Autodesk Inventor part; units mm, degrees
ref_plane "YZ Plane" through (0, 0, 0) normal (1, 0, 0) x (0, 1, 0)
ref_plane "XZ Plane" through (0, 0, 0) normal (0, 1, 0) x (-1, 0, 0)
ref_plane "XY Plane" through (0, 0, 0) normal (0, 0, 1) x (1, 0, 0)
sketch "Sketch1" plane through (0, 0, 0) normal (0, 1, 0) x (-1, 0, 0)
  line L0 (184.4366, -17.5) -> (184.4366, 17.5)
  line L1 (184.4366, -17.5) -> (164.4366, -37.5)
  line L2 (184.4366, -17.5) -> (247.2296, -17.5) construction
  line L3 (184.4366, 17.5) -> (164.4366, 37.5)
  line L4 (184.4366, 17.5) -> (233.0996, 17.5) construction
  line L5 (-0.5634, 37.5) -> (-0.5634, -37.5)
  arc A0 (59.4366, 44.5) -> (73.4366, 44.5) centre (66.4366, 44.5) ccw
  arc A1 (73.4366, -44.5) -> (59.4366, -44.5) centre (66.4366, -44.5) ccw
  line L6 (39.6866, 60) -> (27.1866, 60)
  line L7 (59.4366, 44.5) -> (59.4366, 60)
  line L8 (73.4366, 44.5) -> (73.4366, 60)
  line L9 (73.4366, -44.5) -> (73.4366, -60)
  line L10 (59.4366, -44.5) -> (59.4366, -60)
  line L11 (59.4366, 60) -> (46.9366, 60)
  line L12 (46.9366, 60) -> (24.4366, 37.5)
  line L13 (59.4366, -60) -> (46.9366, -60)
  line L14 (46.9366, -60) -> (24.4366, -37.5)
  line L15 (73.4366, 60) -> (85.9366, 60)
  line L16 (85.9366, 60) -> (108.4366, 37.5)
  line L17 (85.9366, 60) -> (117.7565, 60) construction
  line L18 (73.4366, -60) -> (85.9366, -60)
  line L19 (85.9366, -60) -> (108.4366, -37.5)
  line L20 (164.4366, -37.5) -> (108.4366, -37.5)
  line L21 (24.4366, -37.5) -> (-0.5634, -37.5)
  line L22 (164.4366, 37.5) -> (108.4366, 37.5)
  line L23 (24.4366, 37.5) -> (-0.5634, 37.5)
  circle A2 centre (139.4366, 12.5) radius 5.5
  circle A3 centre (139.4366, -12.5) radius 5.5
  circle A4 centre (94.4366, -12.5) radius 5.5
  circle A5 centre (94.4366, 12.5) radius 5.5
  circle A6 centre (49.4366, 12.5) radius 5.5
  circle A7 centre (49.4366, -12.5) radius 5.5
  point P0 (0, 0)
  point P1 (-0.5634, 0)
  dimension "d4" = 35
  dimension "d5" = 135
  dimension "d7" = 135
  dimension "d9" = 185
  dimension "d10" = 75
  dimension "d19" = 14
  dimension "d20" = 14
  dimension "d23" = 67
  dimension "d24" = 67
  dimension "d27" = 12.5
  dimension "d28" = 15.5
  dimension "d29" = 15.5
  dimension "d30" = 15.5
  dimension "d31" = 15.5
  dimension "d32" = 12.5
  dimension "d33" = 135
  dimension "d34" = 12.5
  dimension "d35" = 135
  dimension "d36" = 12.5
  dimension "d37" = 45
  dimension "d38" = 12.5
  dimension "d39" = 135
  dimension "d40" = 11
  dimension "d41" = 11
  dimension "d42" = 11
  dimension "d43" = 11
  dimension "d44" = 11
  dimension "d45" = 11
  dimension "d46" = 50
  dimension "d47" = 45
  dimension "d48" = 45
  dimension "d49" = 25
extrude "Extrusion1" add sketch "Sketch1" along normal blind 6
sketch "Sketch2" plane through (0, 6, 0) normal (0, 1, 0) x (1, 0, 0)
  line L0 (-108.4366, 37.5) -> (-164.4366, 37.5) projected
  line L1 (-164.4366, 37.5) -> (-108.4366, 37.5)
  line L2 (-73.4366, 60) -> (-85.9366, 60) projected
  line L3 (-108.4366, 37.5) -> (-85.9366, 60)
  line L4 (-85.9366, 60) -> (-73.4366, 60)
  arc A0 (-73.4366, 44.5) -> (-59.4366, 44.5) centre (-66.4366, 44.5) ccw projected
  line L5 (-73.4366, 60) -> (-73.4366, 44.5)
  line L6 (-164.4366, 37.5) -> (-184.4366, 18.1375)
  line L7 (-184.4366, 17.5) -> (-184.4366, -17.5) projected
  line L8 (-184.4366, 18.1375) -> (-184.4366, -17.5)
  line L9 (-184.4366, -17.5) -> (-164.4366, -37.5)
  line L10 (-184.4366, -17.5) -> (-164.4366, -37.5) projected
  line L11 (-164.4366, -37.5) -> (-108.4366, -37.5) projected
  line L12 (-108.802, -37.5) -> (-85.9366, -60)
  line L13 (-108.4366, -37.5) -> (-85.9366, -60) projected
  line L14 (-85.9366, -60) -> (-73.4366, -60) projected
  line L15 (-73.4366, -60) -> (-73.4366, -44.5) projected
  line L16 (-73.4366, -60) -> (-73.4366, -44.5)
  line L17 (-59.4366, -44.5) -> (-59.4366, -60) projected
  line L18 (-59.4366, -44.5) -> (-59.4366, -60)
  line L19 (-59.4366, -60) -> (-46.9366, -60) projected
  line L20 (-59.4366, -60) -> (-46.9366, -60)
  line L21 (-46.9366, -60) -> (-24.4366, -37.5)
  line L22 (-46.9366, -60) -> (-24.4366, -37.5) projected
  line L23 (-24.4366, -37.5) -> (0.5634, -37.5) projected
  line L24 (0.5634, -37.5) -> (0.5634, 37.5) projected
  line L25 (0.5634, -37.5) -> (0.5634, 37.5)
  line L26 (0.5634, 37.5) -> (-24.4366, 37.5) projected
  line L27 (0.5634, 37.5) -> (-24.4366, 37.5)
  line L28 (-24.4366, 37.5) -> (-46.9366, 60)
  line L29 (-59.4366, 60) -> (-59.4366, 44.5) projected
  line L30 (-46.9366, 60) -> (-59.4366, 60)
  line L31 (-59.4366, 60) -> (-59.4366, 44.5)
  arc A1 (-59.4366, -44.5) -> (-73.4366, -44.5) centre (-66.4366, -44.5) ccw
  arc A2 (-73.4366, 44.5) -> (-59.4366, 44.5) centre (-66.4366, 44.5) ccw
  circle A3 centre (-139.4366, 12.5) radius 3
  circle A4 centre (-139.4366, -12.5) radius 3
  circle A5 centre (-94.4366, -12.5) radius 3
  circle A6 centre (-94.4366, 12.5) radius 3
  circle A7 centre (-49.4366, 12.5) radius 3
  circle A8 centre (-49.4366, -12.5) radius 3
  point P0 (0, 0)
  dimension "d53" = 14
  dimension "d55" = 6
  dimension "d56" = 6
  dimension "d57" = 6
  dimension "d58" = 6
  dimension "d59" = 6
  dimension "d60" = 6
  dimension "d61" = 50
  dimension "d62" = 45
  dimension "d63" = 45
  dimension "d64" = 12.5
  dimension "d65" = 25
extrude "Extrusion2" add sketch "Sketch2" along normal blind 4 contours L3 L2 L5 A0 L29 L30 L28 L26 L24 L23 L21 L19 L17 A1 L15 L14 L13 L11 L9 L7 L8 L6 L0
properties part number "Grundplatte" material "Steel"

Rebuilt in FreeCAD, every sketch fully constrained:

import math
import FreeCAD as App
import Part
import Sketcher

V = App.Vector
Q = App.Units.Quantity

doc = App.newDocument("Part")
body = doc.addObject("PartDesign::Body", "Body")

# Sketch on XZ plane
sketch1 = doc.addObject("Sketcher::SketchObject", "Sketch")
body.addObject(sketch1)
sketch1.AttachmentSupport = (doc.XZ_Plane, [""])
sketch1.MapMode = "FlatFace"
sketch1.addGeometry(Part.LineSegment(V(-164.4366, -37.5, 0), V(-184.4366, -17.5, 0)), False)
sketch1.addGeometry(Part.LineSegment(V(-184.4366, -17.5, 0), V(-184.4366, 17.5, 0)), False)
sketch1.addGeometry(Part.LineSegment(V(-184.4366, 17.5, 0), V(-164.4366, 37.5, 0)), False)
sketch1.addGeometry(Part.LineSegment(V(-164.4366, 37.5, 0), V(-108.4366, 37.5, 0)), False)
sketch1.addGeometry(Part.LineSegment(V(-108.4366, 37.5, 0), V(-85.9366, 60, 0)), False)
sketch1.addGeometry(Part.LineSegment(V(-85.9366, 60, 0), V(-73.4366, 60, 0)), False)
sketch1.addGeometry(Part.LineSegment(V(-73.4366, 60, 0), V(-73.4366, 44.5, 0)), False)
sketch1.addGeometry(Part.ArcOfCircle(Part.Circle(V(-66.4366, 44.5, 0), V(0, 0, 1), 7), math.radians(180), math.radians(360)), False)
sketch1.addGeometry(Part.LineSegment(V(-59.4366, 44.5, 0), V(-59.4366, 60, 0)), False)
sketch1.addGeometry(Part.LineSegment(V(-59.4366, 60, 0), V(-46.9366, 60, 0)), False)
sketch1.addGeometry(Part.LineSegment(V(-46.9366, 60, 0), V(-24.4366, 37.5, 0)), False)
sketch1.addGeometry(Part.LineSegment(V(-24.4366, 37.5, 0), V(0.5634, 37.5, 0)), False)
sketch1.addGeometry(Part.LineSegment(V(0.5634, 37.5, 0), V(0.5634, -37.5, 0)), False)
sketch1.addGeometry(Part.LineSegment(V(0.5634, -37.5, 0), V(-24.4366, -37.5, 0)), False)
sketch1.addGeometry(Part.LineSegment(V(-24.4366, -37.5, 0), V(-46.9366, -60, 0)), False)
sketch1.addGeometry(Part.LineSegment(V(-46.9366, -60, 0), V(-59.4366, -60, 0)), False)
sketch1.addGeometry(Part.LineSegment(V(-59.4366, -60, 0), V(-59.4366, -44.5, 0)), False)
sketch1.addGeometry(Part.ArcOfCircle(Part.Circle(V(-66.4366, -44.5, 0), V(0, 0, 1), 7), math.radians(0), math.radians(180)), False)
sketch1.addGeometry(Part.LineSegment(V(-73.4366, -44.5, 0), V(-73.4366, -60, 0)), False)
sketch1.addGeometry(Part.LineSegment(V(-73.4366, -60, 0), V(-85.9366, -60, 0)), False)
sketch1.addGeometry(Part.LineSegment(V(-85.9366, -60, 0), V(-108.4366, -37.5, 0)), False)
sketch1.addGeometry(Part.LineSegment(V(-108.4366, -37.5, 0), V(-164.4366, -37.5, 0)), False)
sketch1.addGeometry(Part.Circle(V(-49.4366, -12.5, 0), V(0, 0, 1), 5.5), False)
sketch1.addGeometry(Part.Circle(V(-94.4366, -12.5, 0), V(0, 0, 1), 5.5), False)
sketch1.addGeometry(Part.Circle(V(-139.4366, -12.5, 0), V(0, 0, 1), 5.5), False)
sketch1.addGeometry(Part.Circle(V(-49.4366, 12.5, 0), V(0, 0, 1), 5.5), False)
sketch1.addGeometry(Part.Circle(V(-94.4366, 12.5, 0), V(0, 0, 1), 5.5), False)
sketch1.addGeometry(Part.Circle(V(-139.4366, 12.5, 0), V(0, 0, 1), 5.5), False)
sketch1.addConstraint(Sketcher.Constraint("Coincident", 0, 2, 1, 1))
sketch1.addConstraint(Sketcher.Constraint("Coincident", 1, 2, 2, 1))
sketch1.addConstraint(Sketcher.Constraint("Coincident", 2, 2, 3, 1))
sketch1.addConstraint(Sketcher.Constraint("Coincident", 3, 2, 4, 1))
sketch1.addConstraint(Sketcher.Constraint("Coincident", 4, 2, 5, 1))
sketch1.addConstraint(Sketcher.Constraint("Coincident", 5, 2, 6, 1))
sketch1.addConstraint(Sketcher.Constraint("Tangent", 6, 2, 7, 1))
sketch1.addConstraint(Sketcher.Constraint("Tangent", 7, 2, 8, 1))
sketch1.addConstraint(Sketcher.Constraint("Coincident", 8, 2, 9, 1))
sketch1.addConstraint(Sketcher.Constraint("Coincident", 9, 2, 10, 1))
sketch1.addConstraint(Sketcher.Constraint("Coincident", 10, 2, 11, 1))
sketch1.addConstraint(Sketcher.Constraint("Coincident", 11, 2, 12, 1))
sketch1.addConstraint(Sketcher.Constraint("Coincident", 12, 2, 13, 1))
sketch1.addConstraint(Sketcher.Constraint("Coincident", 13, 2, 14, 1))
sketch1.addConstraint(Sketcher.Constraint("Coincident", 14, 2, 15, 1))
sketch1.addConstraint(Sketcher.Constraint("Coincident", 15, 2, 16, 1))
sketch1.addConstraint(Sketcher.Constraint("Tangent", 16, 2, 17, 1))
sketch1.addConstraint(Sketcher.Constraint("Tangent", 17, 2, 18, 1))
sketch1.addConstraint(Sketcher.Constraint("Coincident", 18, 2, 19, 1))
sketch1.addConstraint(Sketcher.Constraint("Coincident", 19, 2, 20, 1))
sketch1.addConstraint(Sketcher.Constraint("Coincident", 20, 2, 21, 1))
sketch1.addConstraint(Sketcher.Constraint("Coincident", 21, 2, 0, 1))
sketch1.addConstraint(Sketcher.Constraint("Vertical", 1))
sketch1.addConstraint(Sketcher.Constraint("Horizontal", 3))
sketch1.addConstraint(Sketcher.Constraint("Horizontal", 5))
sketch1.addConstraint(Sketcher.Constraint("Vertical", 6))
sketch1.addConstraint(Sketcher.Constraint("Vertical", 8))
sketch1.addConstraint(Sketcher.Constraint("Horizontal", 9))
sketch1.addConstraint(Sketcher.Constraint("Horizontal", 11))
sketch1.addConstraint(Sketcher.Constraint("Vertical", 12))
sketch1.addConstraint(Sketcher.Constraint("Horizontal", 13))
sketch1.addConstraint(Sketcher.Constraint("Horizontal", 15))
sketch1.addConstraint(Sketcher.Constraint("Vertical", 16))
sketch1.addConstraint(Sketcher.Constraint("Vertical", 18))
sketch1.addConstraint(Sketcher.Constraint("Horizontal", 19))
sketch1.addConstraint(Sketcher.Constraint("Horizontal", 21))
sketch1.addConstraint(Sketcher.Constraint("Equal", 7, 17))
sketch1.addConstraint(Sketcher.Constraint("Equal", 22, 23))
sketch1.addConstraint(Sketcher.Constraint("Equal", 23, 24))
sketch1.addConstraint(Sketcher.Constraint("Equal", 24, 25))
sketch1.addConstraint(Sketcher.Constraint("Equal", 25, 26))
sketch1.addConstraint(Sketcher.Constraint("Equal", 26, 27))
sketch1.addConstraint(Sketcher.Constraint("Symmetric", 7, 3, 17, 3, -1))
sketch1.addConstraint(Sketcher.Constraint("Symmetric", 22, 3, 25, 3, -1))
sketch1.addConstraint(Sketcher.Constraint("Symmetric", 23, 3, 26, 3, -1))
sketch1.addConstraint(Sketcher.Constraint("Symmetric", 24, 3, 27, 3, -1))
sketch1.addConstraint(Sketcher.Constraint("Symmetric", 10, 2, 13, 2, -1))
sketch1.addConstraint(Sketcher.Constraint("Symmetric", 9, 2, 14, 2, -1))
sketch1.addConstraint(Sketcher.Constraint("Symmetric", 4, 2, 19, 2, -1))
sketch1.addConstraint(Sketcher.Constraint("Symmetric", 3, 2, 20, 2, -1))
sketch1.addConstraint(Sketcher.Constraint("Perpendicular", 0, 2))
sketch1.addConstraint(Sketcher.Constraint("Parallel", 2, 4))
sketch1.addConstraint(Sketcher.Constraint("Perpendicular", 4, 10))
sketch1.addConstraint(Sketcher.Constraint("Perpendicular", 10, 14))
sketch1.addConstraint(Sketcher.Constraint("Horizontal", 22, 3, 23, 3))
sketch1.addConstraint(Sketcher.Constraint("Horizontal", 23, 3, 24, 3))
sketch1.addConstraint(Sketcher.Constraint("Horizontal", 5, 2, 8, 2))
sketch1.addConstraint(Sketcher.Constraint("Horizontal", 3, 2, 10, 2))
sketch1.addConstraint(Sketcher.Constraint("Vertical", 2, 2, 21, 2))
sketch1.addConstraint(Sketcher.Constraint("Equal", 5, 9))
sketch1.addConstraint(Sketcher.Constraint("Diameter", 22, Q("11 mm")))
sketch1.addConstraint(Sketcher.Constraint("Radius", 7, Q("7 mm")))
sketch1.addConstraint(Sketcher.Constraint("DistanceX", 11, 1, 11, 2, Q("25 mm")))
sketch1.addConstraint(Sketcher.Constraint("DistanceY", 1, 1, 1, 2, Q("35 mm")))
sketch1.addConstraint(Sketcher.Constraint("DistanceY", 12, 2, 12, 1, Q("75 mm")))
sketch1.addConstraint(Sketcher.Constraint("DistanceX", 5, 1, 5, 2, Q("12.5 mm")))
sketch1.addConstraint(Sketcher.Constraint("DistanceY", 6, 2, 6, 1, Q("15.5 mm")))
sketch1.addConstraint(Sketcher.Constraint("DistanceX", 23, 3, 22, 3, Q("45 mm")))
sketch1.addConstraint(Sketcher.Constraint("DistanceX", 24, 3, 23, 3, Q("45 mm")))
sketch1.addConstraint(Sketcher.Constraint("DistanceY", 22, 3, 25, 3, Q("25 mm")))
sketch1.addConstraint(Sketcher.Constraint("DistanceX", 0, 2, 24, 3, Q("45 mm")))
sketch1.addConstraint(Sketcher.Constraint("DistanceX", 3, 2, 26, 3, Q("14 mm")))
sketch1.addConstraint(Sketcher.Constraint("DistanceX", 3, 2, 5, 2, Q("35 mm")))
sketch1.addConstraint(Sketcher.Constraint("DistanceX", 7, 3, -1, 1, Q("66.4366 mm")))
pad1 = doc.addObject("PartDesign::Pad", "Pad")
body.addObject(pad1)
pad1.Profile = sketch1
pad1.Length = 6
pad1.Reversed = True

# Sketch on XZ plane
sketch2 = doc.addObject("Sketcher::SketchObject", "Sketch001")
body.addObject(sketch2)
sketch2.AttachmentSupport = (doc.XZ_Plane, [""])
sketch2.MapMode = "FlatFace"
sketch2.AttachmentOffset = App.Placement(V(0, 0, -6), App.Rotation())
sketch2.addGeometry(Part.LineSegment(V(-85.9366, -60, 0), V(-108.4366, -37.5, 0)), False)
sketch2.addGeometry(Part.LineSegment(V(-108.4366, -37.5, 0), V(-164.4366, -37.5, 0)), False)
sketch2.addGeometry(Part.LineSegment(V(-164.4366, -37.5, 0), V(-184.4366, -18.1375, 0)), False)
sketch2.addGeometry(Part.LineSegment(V(-184.4366, -18.1375, 0), V(-184.4366, 17.5, 0)), False)
sketch2.addGeometry(Part.LineSegment(V(-184.4366, 17.5, 0), V(-164.4366, 37.5, 0)), False)
sketch2.addGeometry(Part.LineSegment(V(-164.4366, 37.5, 0), V(-108.4366, 37.5, 0)), False)
sketch2.addGeometry(Part.LineSegment(V(-108.4366, 37.5, 0), V(-85.9366, 60, 0)), False)
sketch2.addGeometry(Part.LineSegment(V(-85.9366, 60, 0), V(-73.4366, 60, 0)), False)
sketch2.addGeometry(Part.LineSegment(V(-73.4366, 60, 0), V(-73.4366, 44.5, 0)), False)
sketch2.addGeometry(Part.ArcOfCircle(Part.Circle(V(-66.4366, 44.5, 0), V(0, 0, 1), 7), math.radians(180), math.radians(360)), False)
sketch2.addGeometry(Part.LineSegment(V(-59.4366, 44.5, 0), V(-59.4366, 60, 0)), False)
sketch2.addGeometry(Part.LineSegment(V(-59.4366, 60, 0), V(-46.9366, 60, 0)), False)
sketch2.addGeometry(Part.LineSegment(V(-46.9366, 60, 0), V(-24.4366, 37.5, 0)), False)
sketch2.addGeometry(Part.LineSegment(V(-24.4366, 37.5, 0), V(0.5634, 37.5, 0)), False)
sketch2.addGeometry(Part.LineSegment(V(0.5634, 37.5, 0), V(0.5634, -37.5, 0)), False)
sketch2.addGeometry(Part.LineSegment(V(0.5634, -37.5, 0), V(-24.4366, -37.5, 0)), False)
sketch2.addGeometry(Part.LineSegment(V(-24.4366, -37.5, 0), V(-46.9366, -60, 0)), False)
sketch2.addGeometry(Part.LineSegment(V(-46.9366, -60, 0), V(-59.4366, -60, 0)), False)
sketch2.addGeometry(Part.LineSegment(V(-59.4366, -60, 0), V(-59.4366, -44.5, 0)), False)
sketch2.addGeometry(Part.ArcOfCircle(Part.Circle(V(-66.4366, -44.5, 0), V(0, 0, 1), 7), math.radians(0), math.radians(180)), False)
sketch2.addGeometry(Part.LineSegment(V(-73.4366, -44.5, 0), V(-73.4366, -60, 0)), False)
sketch2.addGeometry(Part.LineSegment(V(-73.4366, -60, 0), V(-85.9366, -60, 0)), False)
sketch2.addGeometry(Part.Circle(V(-139.4366, 12.5, 0), V(0, 0, 1), 3), False)
sketch2.addGeometry(Part.Circle(V(-94.4366, 12.5, 0), V(0, 0, 1), 3), False)
sketch2.addGeometry(Part.Circle(V(-49.4366, 12.5, 0), V(0, 0, 1), 3), False)
sketch2.addGeometry(Part.Circle(V(-139.4366, -12.5, 0), V(0, 0, 1), 3), False)
sketch2.addGeometry(Part.Circle(V(-94.4366, -12.5, 0), V(0, 0, 1), 3), False)
sketch2.addGeometry(Part.Circle(V(-49.4366, -12.5, 0), V(0, 0, 1), 3), False)
sketch2.addConstraint(Sketcher.Constraint("Coincident", 0, 2, 1, 1))
sketch2.addConstraint(Sketcher.Constraint("Coincident", 1, 2, 2, 1))
sketch2.addConstraint(Sketcher.Constraint("Coincident", 2, 2, 3, 1))
sketch2.addConstraint(Sketcher.Constraint("Coincident", 3, 2, 4, 1))
sketch2.addConstraint(Sketcher.Constraint("Coincident", 4, 2, 5, 1))
sketch2.addConstraint(Sketcher.Constraint("Coincident", 5, 2, 6, 1))
sketch2.addConstraint(Sketcher.Constraint("Coincident", 6, 2, 7, 1))
sketch2.addConstraint(Sketcher.Constraint("Coincident", 7, 2, 8, 1))
sketch2.addConstraint(Sketcher.Constraint("Tangent", 8, 2, 9, 1))
sketch2.addConstraint(Sketcher.Constraint("Tangent", 9, 2, 10, 1))
sketch2.addConstraint(Sketcher.Constraint("Coincident", 10, 2, 11, 1))
sketch2.addConstraint(Sketcher.Constraint("Coincident", 11, 2, 12, 1))
sketch2.addConstraint(Sketcher.Constraint("Coincident", 12, 2, 13, 1))
sketch2.addConstraint(Sketcher.Constraint("Coincident", 13, 2, 14, 1))
sketch2.addConstraint(Sketcher.Constraint("Coincident", 14, 2, 15, 1))
sketch2.addConstraint(Sketcher.Constraint("Coincident", 15, 2, 16, 1))
sketch2.addConstraint(Sketcher.Constraint("Coincident", 16, 2, 17, 1))
sketch2.addConstraint(Sketcher.Constraint("Coincident", 17, 2, 18, 1))
sketch2.addConstraint(Sketcher.Constraint("Tangent", 18, 2, 19, 1))
sketch2.addConstraint(Sketcher.Constraint("Tangent", 19, 2, 20, 1))
sketch2.addConstraint(Sketcher.Constraint("Coincident", 20, 2, 21, 1))
sketch2.addConstraint(Sketcher.Constraint("Coincident", 21, 2, 0, 1))
sketch2.addConstraint(Sketcher.Constraint("Horizontal", 1))
sketch2.addConstraint(Sketcher.Constraint("Vertical", 3))
sketch2.addConstraint(Sketcher.Constraint("Horizontal", 5))
sketch2.addConstraint(Sketcher.Constraint("Horizontal", 7))
sketch2.addConstraint(Sketcher.Constraint("Vertical", 8))
sketch2.addConstraint(Sketcher.Constraint("Vertical", 10))
sketch2.addConstraint(Sketcher.Constraint("Horizontal", 11))
sketch2.addConstraint(Sketcher.Constraint("Horizontal", 13))
sketch2.addConstraint(Sketcher.Constraint("Vertical", 14))
sketch2.addConstraint(Sketcher.Constraint("Horizontal", 15))
sketch2.addConstraint(Sketcher.Constraint("Horizontal", 17))
sketch2.addConstraint(Sketcher.Constraint("Vertical", 18))
sketch2.addConstraint(Sketcher.Constraint("Vertical", 20))
sketch2.addConstraint(Sketcher.Constraint("Horizontal", 21))
sketch2.addConstraint(Sketcher.Constraint("Equal", 9, 19))
sketch2.addConstraint(Sketcher.Constraint("Equal", 22, 23))
sketch2.addConstraint(Sketcher.Constraint("Equal", 23, 24))
sketch2.addConstraint(Sketcher.Constraint("Equal", 24, 25))
sketch2.addConstraint(Sketcher.Constraint("Equal", 25, 26))
sketch2.addConstraint(Sketcher.Constraint("Equal", 26, 27))
sketch2.addConstraint(Sketcher.Constraint("Symmetric", 9, 3, 19, 3, -1))
sketch2.addConstraint(Sketcher.Constraint("Symmetric", 22, 3, 25, 3, -1))
sketch2.addConstraint(Sketcher.Constraint("Symmetric", 23, 3, 26, 3, -1))
sketch2.addConstraint(Sketcher.Constraint("Symmetric", 24, 3, 27, 3, -1))
sketch2.addConstraint(Sketcher.Constraint("Symmetric", 1, 2, 4, 2, -1))
sketch2.addConstraint(Sketcher.Constraint("Symmetric", 12, 2, 15, 2, -1))
sketch2.addConstraint(Sketcher.Constraint("Symmetric", 11, 2, 16, 2, -1))
sketch2.addConstraint(Sketcher.Constraint("Symmetric", 6, 2, 21, 2, -1))
sketch2.addConstraint(Sketcher.Constraint("Perpendicular", 0, 4))
sketch2.addConstraint(Sketcher.Constraint("Parallel", 4, 6))
sketch2.addConstraint(Sketcher.Constraint("Perpendicular", 6, 12))
sketch2.addConstraint(Sketcher.Constraint("Perpendicular", 12, 16))
sketch2.addConstraint(Sketcher.Constraint("Horizontal", 22, 3, 23, 3))
sketch2.addConstraint(Sketcher.Constraint("Horizontal", 23, 3, 24, 3))
sketch2.addConstraint(Sketcher.Constraint("Horizontal", 7, 2, 10, 2))
sketch2.addConstraint(Sketcher.Constraint("Horizontal", 5, 2, 12, 2))
sketch2.addConstraint(Sketcher.Constraint("Equal", 7, 11))
sketch2.addConstraint(Sketcher.Constraint("Diameter", 22, Q("6 mm")))
sketch2.addConstraint(Sketcher.Constraint("Radius", 9, Q("7 mm")))
sketch2.addConstraint(Sketcher.Constraint("DistanceX", 13, 1, 13, 2, Q("25 mm")))
sketch2.addConstraint(Sketcher.Constraint("DistanceX", 7, 1, 7, 2, Q("12.5 mm")))
sketch2.addConstraint(Sketcher.Constraint("DistanceX", 22, 3, 23, 3, Q("45 mm")))
sketch2.addConstraint(Sketcher.Constraint("DistanceX", 23, 3, 24, 3, Q("45 mm")))
sketch2.addConstraint(Sketcher.Constraint("DistanceY", 25, 3, 22, 3, Q("25 mm")))
sketch2.addConstraint(Sketcher.Constraint("DistanceX", 0, 2, 26, 3, Q("14 mm")))
sketch2.addConstraint(Sketcher.Constraint("DistanceY", 0, 2, 26, 3, Q("25 mm")))
sketch2.addConstraint(Sketcher.Constraint("DistanceX", 1, 2, 25, 3, Q("25 mm")))
sketch2.addConstraint(Sketcher.Constraint("DistanceX", 2, 2, 25, 3, Q("45 mm")))
sketch2.addConstraint(Sketcher.Constraint("DistanceX", 24, 3, 12, 2, Q("25 mm")))
sketch2.addConstraint(Sketcher.Constraint("DistanceY", 8, 2, 8, 1, Q("15.5 mm")))
sketch2.addConstraint(Sketcher.Constraint("DistanceY", 3, 1, 3, 2, Q("35.6375 mm")))
sketch2.addConstraint(Sketcher.Constraint("DistanceX", 9, 3, -1, 1, Q("66.4366 mm")))
pad2 = doc.addObject("PartDesign::Pad", "Pad001")
body.addObject(pad2)
pad2.Profile = sketch2
pad2.Length = 4
pad2.Reversed = True

doc.recompute()
